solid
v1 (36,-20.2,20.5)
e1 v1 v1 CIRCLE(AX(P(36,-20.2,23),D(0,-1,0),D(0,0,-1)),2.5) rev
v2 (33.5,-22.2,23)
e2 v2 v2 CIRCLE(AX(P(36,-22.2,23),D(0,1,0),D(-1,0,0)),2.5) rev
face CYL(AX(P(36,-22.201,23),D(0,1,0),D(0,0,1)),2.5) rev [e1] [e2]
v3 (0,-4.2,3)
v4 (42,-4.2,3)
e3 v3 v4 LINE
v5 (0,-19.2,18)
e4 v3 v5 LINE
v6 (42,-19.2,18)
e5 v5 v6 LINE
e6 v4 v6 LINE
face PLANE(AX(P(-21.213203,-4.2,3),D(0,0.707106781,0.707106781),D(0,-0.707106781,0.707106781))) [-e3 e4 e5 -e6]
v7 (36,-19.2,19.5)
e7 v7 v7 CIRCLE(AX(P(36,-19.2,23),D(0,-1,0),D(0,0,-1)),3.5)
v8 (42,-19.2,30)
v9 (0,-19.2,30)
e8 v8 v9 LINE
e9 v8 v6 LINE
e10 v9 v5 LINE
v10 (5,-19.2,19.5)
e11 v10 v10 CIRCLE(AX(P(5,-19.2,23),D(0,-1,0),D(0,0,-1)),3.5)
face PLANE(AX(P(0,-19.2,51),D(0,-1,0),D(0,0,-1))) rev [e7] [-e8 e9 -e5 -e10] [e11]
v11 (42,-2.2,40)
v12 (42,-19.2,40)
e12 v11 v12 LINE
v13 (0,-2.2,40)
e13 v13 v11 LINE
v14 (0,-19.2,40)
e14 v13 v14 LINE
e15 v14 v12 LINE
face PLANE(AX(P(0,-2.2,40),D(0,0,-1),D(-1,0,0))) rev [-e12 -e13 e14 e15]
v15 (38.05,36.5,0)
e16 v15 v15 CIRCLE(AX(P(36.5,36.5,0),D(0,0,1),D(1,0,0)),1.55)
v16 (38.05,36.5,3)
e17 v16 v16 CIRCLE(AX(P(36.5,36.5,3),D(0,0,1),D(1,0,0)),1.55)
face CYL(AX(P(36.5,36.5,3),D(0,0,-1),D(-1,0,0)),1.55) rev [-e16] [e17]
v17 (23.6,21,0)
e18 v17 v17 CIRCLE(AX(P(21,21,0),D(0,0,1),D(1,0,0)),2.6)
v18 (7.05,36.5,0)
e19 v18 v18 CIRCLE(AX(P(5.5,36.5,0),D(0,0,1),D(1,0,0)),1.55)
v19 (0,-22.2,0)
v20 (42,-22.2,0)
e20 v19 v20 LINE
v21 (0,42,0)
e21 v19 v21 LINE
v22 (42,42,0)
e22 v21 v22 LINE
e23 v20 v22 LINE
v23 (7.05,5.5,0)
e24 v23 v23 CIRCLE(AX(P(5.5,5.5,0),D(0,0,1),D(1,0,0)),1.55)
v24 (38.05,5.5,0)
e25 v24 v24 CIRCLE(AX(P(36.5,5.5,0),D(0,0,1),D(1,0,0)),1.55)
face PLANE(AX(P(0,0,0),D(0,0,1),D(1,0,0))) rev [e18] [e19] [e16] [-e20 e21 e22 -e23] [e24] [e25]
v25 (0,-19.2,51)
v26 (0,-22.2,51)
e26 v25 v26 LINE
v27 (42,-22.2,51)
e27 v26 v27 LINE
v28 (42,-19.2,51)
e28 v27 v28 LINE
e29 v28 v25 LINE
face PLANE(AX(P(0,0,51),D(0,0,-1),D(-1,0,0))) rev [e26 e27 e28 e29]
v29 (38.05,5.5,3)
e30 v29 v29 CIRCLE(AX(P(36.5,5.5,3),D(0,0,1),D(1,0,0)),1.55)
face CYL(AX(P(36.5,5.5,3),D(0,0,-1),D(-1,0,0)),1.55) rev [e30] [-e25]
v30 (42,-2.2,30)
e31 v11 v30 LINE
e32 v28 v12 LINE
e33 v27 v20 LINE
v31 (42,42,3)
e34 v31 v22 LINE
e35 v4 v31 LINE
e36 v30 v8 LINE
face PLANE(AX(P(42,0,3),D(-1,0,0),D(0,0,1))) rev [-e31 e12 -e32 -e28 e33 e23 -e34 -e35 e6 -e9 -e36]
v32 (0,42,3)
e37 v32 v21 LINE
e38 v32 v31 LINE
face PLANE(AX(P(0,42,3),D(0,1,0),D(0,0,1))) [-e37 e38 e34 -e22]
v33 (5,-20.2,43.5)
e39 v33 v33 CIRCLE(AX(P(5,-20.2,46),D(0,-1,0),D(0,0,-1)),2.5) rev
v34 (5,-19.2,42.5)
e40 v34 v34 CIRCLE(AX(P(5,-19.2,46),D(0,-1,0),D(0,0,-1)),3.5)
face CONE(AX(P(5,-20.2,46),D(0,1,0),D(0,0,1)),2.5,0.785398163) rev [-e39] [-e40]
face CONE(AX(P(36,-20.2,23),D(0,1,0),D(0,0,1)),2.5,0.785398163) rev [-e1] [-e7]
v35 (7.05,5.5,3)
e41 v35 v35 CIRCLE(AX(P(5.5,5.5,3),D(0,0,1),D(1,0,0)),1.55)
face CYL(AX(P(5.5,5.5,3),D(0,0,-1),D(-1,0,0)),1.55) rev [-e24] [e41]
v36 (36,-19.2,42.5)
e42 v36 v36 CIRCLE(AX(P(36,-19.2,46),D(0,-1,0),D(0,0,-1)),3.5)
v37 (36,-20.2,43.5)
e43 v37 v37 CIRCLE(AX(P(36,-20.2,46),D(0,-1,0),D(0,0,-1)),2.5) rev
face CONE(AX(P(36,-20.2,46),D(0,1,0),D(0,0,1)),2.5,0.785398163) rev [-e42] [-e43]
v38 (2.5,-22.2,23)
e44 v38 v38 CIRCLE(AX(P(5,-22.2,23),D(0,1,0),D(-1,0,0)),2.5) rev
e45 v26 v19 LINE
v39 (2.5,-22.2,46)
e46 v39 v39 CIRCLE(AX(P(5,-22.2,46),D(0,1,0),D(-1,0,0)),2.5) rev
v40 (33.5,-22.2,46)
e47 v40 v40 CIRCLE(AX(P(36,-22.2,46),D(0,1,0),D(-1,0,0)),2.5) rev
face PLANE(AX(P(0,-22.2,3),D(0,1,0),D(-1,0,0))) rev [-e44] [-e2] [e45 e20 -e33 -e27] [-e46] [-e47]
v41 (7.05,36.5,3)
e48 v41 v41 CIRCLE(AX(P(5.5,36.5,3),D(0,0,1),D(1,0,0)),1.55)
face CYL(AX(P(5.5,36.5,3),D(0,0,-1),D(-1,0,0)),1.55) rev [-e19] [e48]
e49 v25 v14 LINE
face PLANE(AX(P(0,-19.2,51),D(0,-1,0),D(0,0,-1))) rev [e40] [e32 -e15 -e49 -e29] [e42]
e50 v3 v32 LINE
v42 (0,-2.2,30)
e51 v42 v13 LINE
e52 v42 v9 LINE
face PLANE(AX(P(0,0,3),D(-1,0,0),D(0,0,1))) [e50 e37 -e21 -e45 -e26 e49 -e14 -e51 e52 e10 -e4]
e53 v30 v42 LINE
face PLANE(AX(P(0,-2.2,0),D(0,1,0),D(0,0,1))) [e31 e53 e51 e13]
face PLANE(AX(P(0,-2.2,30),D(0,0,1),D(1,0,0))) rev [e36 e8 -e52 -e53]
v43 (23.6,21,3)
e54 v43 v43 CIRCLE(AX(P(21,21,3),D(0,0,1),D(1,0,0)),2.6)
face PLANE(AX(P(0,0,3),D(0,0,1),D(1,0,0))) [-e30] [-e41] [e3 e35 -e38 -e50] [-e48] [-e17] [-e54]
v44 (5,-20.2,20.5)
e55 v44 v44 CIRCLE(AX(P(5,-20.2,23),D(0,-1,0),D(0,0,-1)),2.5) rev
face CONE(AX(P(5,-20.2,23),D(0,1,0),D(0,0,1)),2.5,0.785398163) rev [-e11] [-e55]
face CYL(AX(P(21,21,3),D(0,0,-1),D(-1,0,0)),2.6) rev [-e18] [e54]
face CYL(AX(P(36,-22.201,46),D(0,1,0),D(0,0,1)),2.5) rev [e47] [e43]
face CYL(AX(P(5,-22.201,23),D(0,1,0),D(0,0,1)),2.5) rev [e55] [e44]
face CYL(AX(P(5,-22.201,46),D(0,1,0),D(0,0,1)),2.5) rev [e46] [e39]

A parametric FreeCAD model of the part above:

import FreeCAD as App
import Part
import Sketcher


def edges_at(feature, points):
    """Names of the edges that pass closest to the given points."""
    edges = feature.Shape.Edges
    near = lambda p: min(range(len(edges)), key=lambda i: edges[i].distToShape(Part.Vertex(*p))[0])
    return sorted({f"Edge{near(p) + 1}" for p in points})

doc = App.newDocument("Part")
params = doc.addObject("Spreadsheet::Sheet", "Params")
for row, (alias, value) in enumerate([
    ("sketch1_diameter", "3.1 mm"),
    ("sketch1_diameter2", "5.2 mm"),
    ("sketch1_width", "42 mm"),
    ("sketch1_height", "64.2 mm"),
    ("pad1_length", "3 mm"),
    ("sketch2_width", "42 mm"),
    ("sketch2_height", "3 mm"),
    ("pad2_length", "48 mm"),
    ("sketch3_width", "15 mm"),
    ("pad3_length", "42 mm"),
    ("sketch4_diameter", "5 mm"),
    ("sketch5_diameter", "5 mm"),
    ("sketch6_diameter", "5 mm"),
    ("sketch7_diameter", "5 mm"),
    ("chamfer_size", "1 mm"),
    ("sketch8_width", "42 mm"),
    ("sketch8_height", "10 mm"),
    ("pad4_length", "17 mm"),
], start=1):
    params.set(f"A{row}", alias)
    params.set(f"B{row}", "=" + value)
    params.setAlias(f"B{row}", alias)

body = doc.addObject("PartDesign::Body", "Body")

sketch1 = doc.addObject("Sketcher::SketchObject", "Sketch")
body.addObject(sketch1)
sketch1.AttachmentSupport = (doc.XY_Plane, [""])
sketch1.MapMode = "FlatFace"
sketch1.addGeometry([
    Part.LineSegment(App.Vector(0, 42, 0), App.Vector(0, -22.2, 0)),
    Part.LineSegment(App.Vector(0, -22.2, 0), App.Vector(42, -22.2, 0)),
    Part.LineSegment(App.Vector(42, -22.2, 0), App.Vector(42, 42, 0)),
    Part.LineSegment(App.Vector(42, 42, 0), App.Vector(0, 42, 0)),
    Part.Circle(App.Vector(5.5, 5.5, 0), App.Vector(0, 0, 1), 1.6),
    Part.Circle(App.Vector(36.5, 5.5, 0), App.Vector(0, 0, 1), 1.6),
    Part.Circle(App.Vector(5.5, 36.5, 0), App.Vector(0, 0, 1), 1.6),
    Part.Circle(App.Vector(21, 21, 0), App.Vector(0, 0, 1), 2.6),
    Part.Circle(App.Vector(36.5, 36.5, 0), App.Vector(0, 0, 1), 1.6),
], False)
sketch1.addConstraint([
    Sketcher.Constraint("Coincident", 0, 2, 1, 1),
    Sketcher.Constraint("Coincident", 1, 2, 2, 1),
    Sketcher.Constraint("Coincident", 2, 2, 3, 1),
    Sketcher.Constraint("Coincident", 3, 2, 0, 1),
    Sketcher.Constraint("Vertical", 0),
    Sketcher.Constraint("Horizontal", 1),
    Sketcher.Constraint("Vertical", 2),
    Sketcher.Constraint("Horizontal", 3),
    Sketcher.Constraint("Equal", 4, 5),
    Sketcher.Constraint("Equal", 5, 6),
    Sketcher.Constraint("Equal", 6, 8),
    Sketcher.Constraint("PointOnObject", 0, 2, -2),
    Sketcher.Constraint("Horizontal", 4, 3, 5, 3),
    Sketcher.Constraint("Horizontal", 6, 3, 8, 3),
    Sketcher.Constraint("Vertical", 4, 3, 6, 3),
    Sketcher.Constraint("Vertical", 5, 3, 8, 3),
    Sketcher.Constraint("Diameter", 4, 3.1),
    Sketcher.Constraint("Diameter", 7, 5.2),
    Sketcher.Constraint("DistanceX", 1, 1, 1, 2, 42.0),
    Sketcher.Constraint("DistanceY", 0, 2, 0, 1, 64.2),
    Sketcher.Constraint("DistanceX", -1, 1, 7, 3, 21.0),
    Sketcher.Constraint("DistanceY", -1, 1, 7, 3, 21.0),
    Sketcher.Constraint("DistanceY", -1, 1, 2, 2, 42.0),
    Sketcher.Constraint("DistanceX", 4, 3, 5, 3, 31.0),
    Sketcher.Constraint("DistanceY", 4, 3, 6, 3, 31.0),
    Sketcher.Constraint("DistanceX", -1, 1, 4, 3, 5.5),
    Sketcher.Constraint("DistanceY", -1, 1, 4, 3, 5.5),
])
sketch1.setExpression("Constraints[16]", "Params.sketch1_diameter")
sketch1.setExpression("Constraints[17]", "Params.sketch1_diameter2")
sketch1.setExpression("Constraints[18]", "Params.sketch1_width")
sketch1.setExpression("Constraints[19]", "Params.sketch1_height")
pad1 = doc.addObject("PartDesign::Pad", "Pad")
body.addObject(pad1)
pad1.Profile = sketch1
pad1.setExpression("Length", "Params.pad1_length")

sketch2 = doc.addObject("Sketcher::SketchObject", "Sketch001")
body.addObject(sketch2)
sketch2.AttachmentSupport = (doc.XY_Plane, [""])
sketch2.MapMode = "FlatFace"
sketch2.AttachmentOffset = App.Placement(App.Vector(0, 0, 3), App.Rotation())
sketch2.addGeometry([
    Part.LineSegment(App.Vector(0, -19.2, 0), App.Vector(0, -22.2, 0)),
    Part.LineSegment(App.Vector(0, -22.2, 0), App.Vector(42, -22.2, 0)),
    Part.LineSegment(App.Vector(42, -22.2, 0), App.Vector(42, -19.2, 0)),
    Part.LineSegment(App.Vector(42, -19.2, 0), App.Vector(0, -19.2, 0)),
], False)
sketch2.addConstraint([
    Sketcher.Constraint("Coincident", 0, 2, 1, 1),
    Sketcher.Constraint("Coincident", 1, 2, 2, 1),
    Sketcher.Constraint("Coincident", 2, 2, 3, 1),
    Sketcher.Constraint("Coincident", 3, 2, 0, 1),
    Sketcher.Constraint("Vertical", 0),
    Sketcher.Constraint("Horizontal", 1),
    Sketcher.Constraint("Vertical", 2),
    Sketcher.Constraint("Horizontal", 3),
    Sketcher.Constraint("PointOnObject", 0, 2, -2),
    Sketcher.Constraint("DistanceX", 1, 1, 1, 2, 42.0),
    Sketcher.Constraint("DistanceY", 0, 2, 0, 1, 3.0),
    Sketcher.Constraint("DistanceY", 0, 2, -1, 1, 22.2),
])
sketch2.setExpression("Constraints[9]", "Params.sketch2_width")
sketch2.setExpression("Constraints[10]", "Params.sketch2_height")
pad2 = doc.addObject("PartDesign::Pad", "Pad001")
body.addObject(pad2)
pad2.Profile = sketch2
pad2.setExpression("Length", "Params.pad2_length")

sketch3 = doc.addObject("Sketcher::SketchObject", "Sketch002")
body.addObject(sketch3)
sketch3.AttachmentSupport = (doc.YZ_Plane, [""])
sketch3.MapMode = "FlatFace"
sketch3.AttachmentOffset = App.Placement(App.Vector(0, 0, 42), App.Rotation())
sketch3.addGeometry([
    Part.LineSegment(App.Vector(-4, 3, 0), App.Vector(-19, 18, 0)),
    Part.LineSegment(App.Vector(-19, 18, 0), App.Vector(-19, 3, 0)),
    Part.LineSegment(App.Vector(-19, 3, 0), App.Vector(-4, 3, 0)),
], False)
sketch3.addConstraint([
    Sketcher.Constraint("Coincident", 0, 2, 1, 1),
    Sketcher.Constraint("Coincident", 1, 2, 2, 1),
    Sketcher.Constraint("Coincident", 2, 2, 0, 1),
    Sketcher.Constraint("Vertical", 1),
    Sketcher.Constraint("Horizontal", 2),
    Sketcher.Constraint("Equal", 2, 1),
    Sketcher.Constraint("DistanceX", 2, 1, 2, 2, 15.0),
    Sketcher.Constraint("DistanceY", -1, 1, 0, 2, 18.0),
    Sketcher.Constraint("DistanceX", 0, 2, -1, 1, 19.2),
])
sketch3.setExpression("Constraints[6]", "Params.sketch3_width")
pad3 = doc.addObject("PartDesign::Pad", "Pad002")
body.addObject(pad3)
pad3.Profile = sketch3
pad3.setExpression("Length", "Params.pad3_length")
pad3.Reversed = True

sketch4 = doc.addObject("Sketcher::SketchObject", "Sketch003")
body.addObject(sketch4)
sketch4.AttachmentSupport = (doc.XZ_Plane, [""])
sketch4.MapMode = "FlatFace"
sketch4.AttachmentOffset = App.Placement(App.Vector(0, 0, 19.2), App.Rotation())
sketch4.addGeometry(Part.Circle(App.Vector(5, 23, 0), App.Vector(0, 0, 1), 2.5), False)
sketch4.addConstraint([
    Sketcher.Constraint("Diameter", 0, 5.0),
    Sketcher.Constraint("DistanceX", -1, 1, 0, 3, 5.0),
    Sketcher.Constraint("DistanceY", -1, 1, 0, 3, 23.0),
])
sketch4.setExpression("Constraints[0]", "Params.sketch4_diameter")
pocket1 = doc.addObject("PartDesign::Pocket", "Pocket")
body.addObject(pocket1)
pocket1.Profile = sketch4
pocket1.Type = "UpToFirst"
pocket1.Reversed = True

sketch5 = doc.addObject("Sketcher::SketchObject", "Sketch004")
body.addObject(sketch5)
sketch5.AttachmentSupport = (doc.XZ_Plane, [""])
sketch5.MapMode = "FlatFace"
sketch5.AttachmentOffset = App.Placement(App.Vector(0, 0, 19.2), App.Rotation())
sketch5.addGeometry(Part.Circle(App.Vector(36, 23, 0), App.Vector(0, 0, 1), 2.5), False)
sketch5.addConstraint([
    Sketcher.Constraint("Diameter", 0, 5.0),
    Sketcher.Constraint("DistanceX", -1, 1, 0, 3, 36.0),
    Sketcher.Constraint("DistanceY", -1, 1, 0, 3, 23.0),
])
sketch5.setExpression("Constraints[0]", "Params.sketch5_diameter")
pocket2 = doc.addObject("PartDesign::Pocket", "Pocket001")
body.addObject(pocket2)
pocket2.Profile = sketch5
pocket2.Type = "UpToFirst"
pocket2.Reversed = True

sketch6 = doc.addObject("Sketcher::SketchObject", "Sketch005")
body.addObject(sketch6)
sketch6.AttachmentSupport = (doc.XZ_Plane, [""])
sketch6.MapMode = "FlatFace"
sketch6.AttachmentOffset = App.Placement(App.Vector(0, 0, 19.2), App.Rotation())
sketch6.addGeometry(Part.Circle(App.Vector(36, 46, 0), App.Vector(0, 0, 1), 2.5), False)
sketch6.addConstraint([
    Sketcher.Constraint("Diameter", 0, 5.0),
    Sketcher.Constraint("DistanceX", -1, 1, 0, 3, 36.0),
    Sketcher.Constraint("DistanceY", -1, 1, 0, 3, 46.0),
])
sketch6.setExpression("Constraints[0]", "Params.sketch6_diameter")
pocket3 = doc.addObject("PartDesign::Pocket", "Pocket002")
body.addObject(pocket3)
pocket3.Profile = sketch6
pocket3.Type = "UpToFirst"
pocket3.Reversed = True

sketch7 = doc.addObject("Sketcher::SketchObject", "Sketch006")
body.addObject(sketch7)
sketch7.AttachmentSupport = (doc.XZ_Plane, [""])
sketch7.MapMode = "FlatFace"
sketch7.AttachmentOffset = App.Placement(App.Vector(0, 0, 19.2), App.Rotation())
sketch7.addGeometry(Part.Circle(App.Vector(5, 46, 0), App.Vector(0, 0, 1), 2.5), False)
sketch7.addConstraint([
    Sketcher.Constraint("Diameter", 0, 5.0),
    Sketcher.Constraint("DistanceX", -1, 1, 0, 3, 5.0),
    Sketcher.Constraint("DistanceY", -1, 1, 0, 3, 46.0),
])
sketch7.setExpression("Constraints[0]", "Params.sketch7_diameter")
pocket4 = doc.addObject("PartDesign::Pocket", "Pocket003")
body.addObject(pocket4)
pocket4.Profile = sketch7
pocket4.Type = "UpToFirst"
pocket4.Reversed = True
doc.recompute()

chamfer = doc.addObject("PartDesign::Chamfer", "Chamfer")
body.addObject(chamfer)
chamfer.Base = (pocket4, edges_at(pocket4, [
    (2.5, -19.2, 46),
    (33.5, -19.2, 46),
    (33.5, -19.2, 23),
    (2.5, -19.2, 23),
]))
chamfer.setExpression("Size", "Params.chamfer_size")

sketch8 = doc.addObject("Sketcher::SketchObject", "Sketch007")
body.addObject(sketch8)
sketch8.AttachmentSupport = (doc.XZ_Plane, [""])
sketch8.MapMode = "FlatFace"
sketch8.AttachmentOffset = App.Placement(App.Vector(0, 0, 19.2), App.Rotation())
sketch8.addGeometry([
    Part.LineSegment(App.Vector(0, 30, 0), App.Vector(0, 40, 0)),
    Part.LineSegment(App.Vector(0, 40, 0), App.Vector(42, 40, 0)),
    Part.LineSegment(App.Vector(42, 40, 0), App.Vector(42, 30, 0)),
    Part.LineSegment(App.Vector(42, 30, 0), App.Vector(0, 30, 0)),
], False)
sketch8.addConstraint([
    Sketcher.Constraint("Coincident", 0, 2, 1, 1),
    Sketcher.Constraint("Coincident", 1, 2, 2, 1),
    Sketcher.Constraint("Coincident", 2, 2, 3, 1),
    Sketcher.Constraint("Coincident", 3, 2, 0, 1),
    Sketcher.Constraint("Vertical", 0),
    Sketcher.Constraint("Horizontal", 1),
    Sketcher.Constraint("Vertical", 2),
    Sketcher.Constraint("Horizontal", 3),
    Sketcher.Constraint("PointOnObject", 0, 2, -2),
    Sketcher.Constraint("DistanceX", 1, 1, 1, 2, 42.0),
    Sketcher.Constraint("DistanceY", 0, 1, 0, 2, 10.0),
    Sketcher.Constraint("DistanceY", -1, 1, 0, 2, 40.0),
])
sketch8.setExpression("Constraints[9]", "Params.sketch8_width")
sketch8.setExpression("Constraints[10]", "Params.sketch8_height")
pad4 = doc.addObject("PartDesign::Pad", "Pad003")
body.addObject(pad4)
pad4.Profile = sketch8
pad4.setExpression("Length", "Params.pad4_length")
pad4.Reversed = True

doc.recompute()
